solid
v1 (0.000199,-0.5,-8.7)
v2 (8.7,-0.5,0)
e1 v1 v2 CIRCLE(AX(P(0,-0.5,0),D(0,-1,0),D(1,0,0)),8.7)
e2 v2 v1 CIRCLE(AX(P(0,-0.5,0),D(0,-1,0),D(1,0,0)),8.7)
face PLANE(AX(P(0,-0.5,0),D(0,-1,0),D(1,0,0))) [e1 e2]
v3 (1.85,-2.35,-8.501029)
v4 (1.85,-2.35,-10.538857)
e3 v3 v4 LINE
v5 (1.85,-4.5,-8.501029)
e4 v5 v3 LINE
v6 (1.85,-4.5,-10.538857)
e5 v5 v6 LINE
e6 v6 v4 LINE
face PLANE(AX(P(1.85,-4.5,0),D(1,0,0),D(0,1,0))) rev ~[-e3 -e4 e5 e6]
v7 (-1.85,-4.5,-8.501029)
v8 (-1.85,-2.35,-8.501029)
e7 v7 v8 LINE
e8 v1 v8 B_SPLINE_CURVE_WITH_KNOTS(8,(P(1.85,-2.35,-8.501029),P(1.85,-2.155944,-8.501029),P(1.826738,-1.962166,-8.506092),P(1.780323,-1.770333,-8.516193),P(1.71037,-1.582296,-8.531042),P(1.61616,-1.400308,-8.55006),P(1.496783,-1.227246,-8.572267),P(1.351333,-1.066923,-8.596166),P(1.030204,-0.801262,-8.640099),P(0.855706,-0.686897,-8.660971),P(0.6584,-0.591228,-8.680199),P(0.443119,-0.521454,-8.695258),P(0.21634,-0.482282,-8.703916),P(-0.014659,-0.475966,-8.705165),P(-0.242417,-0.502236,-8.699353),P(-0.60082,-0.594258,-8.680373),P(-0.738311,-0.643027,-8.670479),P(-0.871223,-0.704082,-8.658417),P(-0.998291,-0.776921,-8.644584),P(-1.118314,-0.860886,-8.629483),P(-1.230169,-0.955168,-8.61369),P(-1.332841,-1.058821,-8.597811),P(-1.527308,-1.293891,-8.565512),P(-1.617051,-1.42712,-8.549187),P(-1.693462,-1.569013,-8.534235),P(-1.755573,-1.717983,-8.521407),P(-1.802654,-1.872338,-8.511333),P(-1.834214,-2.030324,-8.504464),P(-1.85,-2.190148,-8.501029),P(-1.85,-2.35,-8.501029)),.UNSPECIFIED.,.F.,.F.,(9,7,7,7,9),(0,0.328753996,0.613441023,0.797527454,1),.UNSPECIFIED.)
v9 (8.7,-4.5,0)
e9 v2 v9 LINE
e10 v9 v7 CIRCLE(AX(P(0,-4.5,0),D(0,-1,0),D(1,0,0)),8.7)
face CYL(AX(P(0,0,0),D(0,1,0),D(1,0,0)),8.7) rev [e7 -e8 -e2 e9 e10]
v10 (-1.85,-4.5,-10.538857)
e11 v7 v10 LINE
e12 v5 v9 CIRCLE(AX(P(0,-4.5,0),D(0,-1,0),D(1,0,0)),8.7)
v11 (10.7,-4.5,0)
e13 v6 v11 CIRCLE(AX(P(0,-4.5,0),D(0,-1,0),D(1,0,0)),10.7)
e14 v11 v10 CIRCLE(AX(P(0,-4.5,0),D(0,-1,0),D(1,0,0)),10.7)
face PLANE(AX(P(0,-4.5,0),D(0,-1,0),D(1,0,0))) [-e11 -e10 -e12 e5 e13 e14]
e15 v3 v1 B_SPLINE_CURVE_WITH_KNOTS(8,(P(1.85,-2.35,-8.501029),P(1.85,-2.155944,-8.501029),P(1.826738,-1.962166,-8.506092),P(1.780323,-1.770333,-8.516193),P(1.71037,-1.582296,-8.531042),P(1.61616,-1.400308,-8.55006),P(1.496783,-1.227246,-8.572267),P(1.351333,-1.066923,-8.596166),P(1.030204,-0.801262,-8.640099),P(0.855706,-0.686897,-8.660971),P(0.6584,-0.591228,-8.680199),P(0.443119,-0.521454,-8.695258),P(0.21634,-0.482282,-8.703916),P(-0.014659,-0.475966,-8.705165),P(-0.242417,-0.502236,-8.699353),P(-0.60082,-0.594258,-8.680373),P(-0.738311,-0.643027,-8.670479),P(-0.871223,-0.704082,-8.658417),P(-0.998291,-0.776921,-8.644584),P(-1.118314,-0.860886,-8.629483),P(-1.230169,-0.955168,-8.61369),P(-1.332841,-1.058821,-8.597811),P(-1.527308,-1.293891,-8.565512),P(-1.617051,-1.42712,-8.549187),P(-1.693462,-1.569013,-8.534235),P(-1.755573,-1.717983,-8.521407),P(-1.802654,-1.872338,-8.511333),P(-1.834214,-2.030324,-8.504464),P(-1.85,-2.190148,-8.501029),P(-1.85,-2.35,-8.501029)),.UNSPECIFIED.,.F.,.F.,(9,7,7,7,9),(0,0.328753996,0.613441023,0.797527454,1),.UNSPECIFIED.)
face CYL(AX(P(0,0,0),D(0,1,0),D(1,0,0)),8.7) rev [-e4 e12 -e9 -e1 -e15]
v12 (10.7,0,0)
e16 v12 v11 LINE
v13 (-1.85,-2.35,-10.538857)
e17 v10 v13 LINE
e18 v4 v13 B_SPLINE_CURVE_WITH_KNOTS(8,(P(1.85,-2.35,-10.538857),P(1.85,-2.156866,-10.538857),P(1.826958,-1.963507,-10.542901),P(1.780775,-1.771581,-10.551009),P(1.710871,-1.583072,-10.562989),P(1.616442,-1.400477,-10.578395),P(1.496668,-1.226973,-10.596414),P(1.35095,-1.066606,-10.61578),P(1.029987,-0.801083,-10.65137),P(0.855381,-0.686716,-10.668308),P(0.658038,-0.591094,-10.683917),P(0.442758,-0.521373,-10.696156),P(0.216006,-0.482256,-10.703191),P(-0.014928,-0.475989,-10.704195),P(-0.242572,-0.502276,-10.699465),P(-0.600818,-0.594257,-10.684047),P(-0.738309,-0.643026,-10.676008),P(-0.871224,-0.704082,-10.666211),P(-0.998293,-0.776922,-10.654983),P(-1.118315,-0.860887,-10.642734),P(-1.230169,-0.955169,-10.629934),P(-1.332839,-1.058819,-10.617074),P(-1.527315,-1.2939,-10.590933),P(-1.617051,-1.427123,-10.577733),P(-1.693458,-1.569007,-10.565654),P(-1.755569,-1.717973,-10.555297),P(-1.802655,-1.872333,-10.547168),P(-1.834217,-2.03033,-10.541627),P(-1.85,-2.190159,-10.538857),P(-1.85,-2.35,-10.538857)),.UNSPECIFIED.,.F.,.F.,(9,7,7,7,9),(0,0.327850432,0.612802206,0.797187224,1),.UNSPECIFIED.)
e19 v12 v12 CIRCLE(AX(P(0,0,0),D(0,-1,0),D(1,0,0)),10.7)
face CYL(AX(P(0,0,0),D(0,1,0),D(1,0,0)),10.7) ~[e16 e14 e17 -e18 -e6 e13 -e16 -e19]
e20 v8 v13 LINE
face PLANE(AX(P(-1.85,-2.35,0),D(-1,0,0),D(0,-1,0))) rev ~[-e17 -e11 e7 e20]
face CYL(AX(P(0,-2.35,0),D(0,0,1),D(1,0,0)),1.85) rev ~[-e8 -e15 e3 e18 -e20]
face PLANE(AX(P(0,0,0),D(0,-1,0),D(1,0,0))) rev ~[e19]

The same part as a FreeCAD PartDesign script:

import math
import FreeCAD as App
import Part
import Sketcher

V = App.Vector
Q = App.Units.Quantity

doc = App.newDocument("Part")
body = doc.addObject("PartDesign::Body", "Body")

# Sketch on XZ plane
sketch1 = doc.addObject("Sketcher::SketchObject", "Sketch")
body.addObject(sketch1)
sketch1.AttachmentSupport = (doc.XZ_Plane, [""])
sketch1.MapMode = "FlatFace"
sketch1.addGeometry(Part.Circle(V(0, 0, 0), V(0, 0, 1), 10.7), False)
sketch1.addGeometry(Part.Circle(V(0, 0, 0), V(0, 0, 1), 8.7), False)
sketch1.addConstraint(Sketcher.Constraint("Coincident", 0, 3, -1, 1))
sketch1.addConstraint(Sketcher.Constraint("Coincident", 1, 3, -1, 1))
sketch1.addConstraint(Sketcher.Constraint("Diameter", 0, Q("21.4 mm")))
sketch1.addConstraint(Sketcher.Constraint("Diameter", 1, Q("17.4 mm")))
pad1 = doc.addObject("PartDesign::Pad", "Pad")
body.addObject(pad1)
pad1.Profile = sketch1
pad1.Length = 4.5

# Sketch on XY plane
sketch2 = doc.addObject("Sketcher::SketchObject", "Sketch001")
body.addObject(sketch2)
sketch2.AttachmentSupport = (doc.XY_Plane, [""])
sketch2.MapMode = "FlatFace"
sketch2.addGeometry(Part.LineSegment(V(1.85, -4.5, 0), V(1.85, -2.35, 0)), False)
sketch2.addGeometry(Part.ArcOfCircle(Part.Circle(V(0, -2.35, 0), V(0, 0, 1), 1.85), math.radians(0), math.radians(180)), False)
sketch2.addGeometry(Part.LineSegment(V(-1.85, -2.35, 0), V(-1.85, -4.5, 0)), False)
sketch2.addGeometry(Part.LineSegment(V(-1.85, -4.5, 0), V(1.85, -4.5, 0)), False)
sketch2.addConstraint(Sketcher.Constraint("Tangent", 0, 2, 1, 1))
sketch2.addConstraint(Sketcher.Constraint("Tangent", 1, 2, 2, 1))
sketch2.addConstraint(Sketcher.Constraint("Coincident", 2, 2, 3, 1))
sketch2.addConstraint(Sketcher.Constraint("Coincident", 3, 2, 0, 1))
sketch2.addConstraint(Sketcher.Constraint("Vertical", 0))
sketch2.addConstraint(Sketcher.Constraint("Vertical", 2))
sketch2.addConstraint(Sketcher.Constraint("Horizontal", 3))
sketch2.addConstraint(Sketcher.Constraint("PointOnObject", 1, 3, -2))
sketch2.addConstraint(Sketcher.Constraint("Radius", 1, Q("1.85 mm")))
sketch2.addConstraint(Sketcher.Constraint("DistanceY", 0, 1, 0, 2, Q("2.15 mm")))
sketch2.addConstraint(Sketcher.Constraint("DistanceY", 2, 2, -1, 1, Q("4.5 mm")))
pocket1 = doc.addObject("PartDesign::Pocket", "Pocket")
body.addObject(pocket1)
pocket1.Profile = sketch2
pocket1.Type = "ThroughAll"

# Sketch on XZ plane
sketch3 = doc.addObject("Sketcher::SketchObject", "Sketch002")
body.addObject(sketch3)
sketch3.AttachmentSupport = (doc.XZ_Plane, [""])
sketch3.MapMode = "FlatFace"
sketch3.addGeometry(Part.Circle(V(0, 0, 0), V(0, 0, 1), 8.7), False)
sketch3.addConstraint(Sketcher.Constraint("Coincident", 0, 3, -1, 1))
sketch3.addConstraint(Sketcher.Constraint("Diameter", 0, Q("17.4 mm")))
pad2 = doc.addObject("PartDesign::Pad", "Pad001")
body.addObject(pad2)
pad2.Profile = sketch3
pad2.Length = 0.5

doc.recompute()
